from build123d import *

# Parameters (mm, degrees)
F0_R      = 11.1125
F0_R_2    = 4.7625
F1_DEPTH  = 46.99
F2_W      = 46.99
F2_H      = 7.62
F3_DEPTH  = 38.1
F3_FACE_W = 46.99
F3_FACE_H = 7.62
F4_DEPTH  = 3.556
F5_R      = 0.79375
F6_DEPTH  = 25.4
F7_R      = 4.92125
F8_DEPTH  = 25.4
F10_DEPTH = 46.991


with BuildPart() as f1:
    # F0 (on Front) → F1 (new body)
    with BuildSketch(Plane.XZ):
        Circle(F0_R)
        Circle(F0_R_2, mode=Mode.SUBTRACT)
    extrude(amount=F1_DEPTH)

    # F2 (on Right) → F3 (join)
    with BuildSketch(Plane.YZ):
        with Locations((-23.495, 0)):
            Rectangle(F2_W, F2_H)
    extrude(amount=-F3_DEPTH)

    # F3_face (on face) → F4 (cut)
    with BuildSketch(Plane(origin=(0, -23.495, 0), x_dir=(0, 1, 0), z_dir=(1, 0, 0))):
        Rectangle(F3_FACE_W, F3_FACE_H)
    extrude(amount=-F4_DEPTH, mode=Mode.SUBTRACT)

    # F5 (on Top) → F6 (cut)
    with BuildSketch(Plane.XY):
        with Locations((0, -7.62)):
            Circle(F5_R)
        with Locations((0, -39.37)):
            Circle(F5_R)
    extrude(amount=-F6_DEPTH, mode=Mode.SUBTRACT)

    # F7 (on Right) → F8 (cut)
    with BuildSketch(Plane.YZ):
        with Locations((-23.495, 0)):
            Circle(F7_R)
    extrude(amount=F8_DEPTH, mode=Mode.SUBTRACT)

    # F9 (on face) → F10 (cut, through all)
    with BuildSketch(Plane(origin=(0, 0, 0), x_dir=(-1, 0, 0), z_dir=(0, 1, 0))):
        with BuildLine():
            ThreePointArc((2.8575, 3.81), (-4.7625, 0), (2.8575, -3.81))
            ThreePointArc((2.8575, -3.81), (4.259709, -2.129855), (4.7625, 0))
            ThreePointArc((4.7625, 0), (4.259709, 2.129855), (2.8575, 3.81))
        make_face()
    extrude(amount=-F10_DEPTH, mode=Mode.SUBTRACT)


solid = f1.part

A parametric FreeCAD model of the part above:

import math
import FreeCAD as App
import Part
import Sketcher

V = App.Vector
Q = App.Units.Quantity


def add_polygon(sketch, points):
    """Adds a closed chain of lines whose ends are joined by coincident constraints."""
    first, n = sketch.GeometryCount, len(points)
    for a, b in zip(points, points[1:] + points[:1]):
        sketch.addGeometry(Part.LineSegment(App.Vector(*a, 0), App.Vector(*b, 0)), False)
    for i in range(n):
        sketch.addConstraint(Sketcher.Constraint("Coincident", first + i, 2, first + (i + 1) % n, 1))

doc = App.newDocument("Part")
body = doc.addObject("PartDesign::Body", "Body")

# Sketch on XZ plane
sketch1 = body.newObject("Sketcher::SketchObject", "Sketch")
sketch1.AttachmentSupport = (doc.getObject("XZ_Plane"), [""])
sketch1.MapMode = "FlatFace"
sketch1.addGeometry([
    Part.Circle(V(0, 0, 0), V(0, 0, 1), 11.1125),
    Part.Circle(V(0, 0, 0), V(0, 0, 1), 4.7625),
], False)
sketch1.addConstraint([
    Sketcher.Constraint("Coincident", 0, 3, -1, 1),
    Sketcher.Constraint("Coincident", 1, 3, -1, 1),
    Sketcher.Constraint("Diameter", 0, Q("0.875 in")),
    Sketcher.Constraint("Diameter", 1, Q("0.375 in")),
])
pad1 = body.newObject("PartDesign::Pad", "Pad")
pad1.Profile = sketch1
pad1.Length = Q("1.85 in")

# Sketch on YZ plane
sketch2 = body.newObject("Sketcher::SketchObject", "Sketch001")
sketch2.AttachmentSupport = (doc.getObject("YZ_Plane"), [""])
sketch2.MapMode = "FlatFace"
add_polygon(sketch2, [(-46.99, 3.81), (-46.99, -3.81), (0, -3.81), (0, 3.81)])  # lines 0-3
sketch2.addConstraint([
    Sketcher.Constraint("Vertical", 0),
    Sketcher.Constraint("Horizontal", 1),
    Sketcher.Constraint("Vertical", 2),
    Sketcher.Constraint("Horizontal", 3),
    Sketcher.Constraint("Symmetric", 1, 2, 2, 2, -1, 1),
    Sketcher.Constraint("DistanceY", 0, 2, 0, 1, Q("0.3 in")),
    Sketcher.Constraint("DistanceX", 1, 1, 1, 2, Q("1.85 in")),
])
pad2 = body.newObject("PartDesign::Pad", "Pad001")
pad2.Profile = sketch2
pad2.Length = Q("1.5 in")
pad2.Reversed = True

# Sketch on YZ plane
sketch3 = body.newObject("Sketcher::SketchObject", "Sketch002")
sketch3.AttachmentSupport = (doc.getObject("YZ_Plane"), [""])
sketch3.MapMode = "FlatFace"
add_polygon(sketch3, [(-46.99, 3.81), (-46.99, -3.81), (0, -3.81), (0, 3.81)])  # lines 0-3
sketch3.addConstraint([
    Sketcher.Constraint("Vertical", 0),
    Sketcher.Constraint("Horizontal", 1),
    Sketcher.Constraint("Vertical", 2),
    Sketcher.Constraint("Horizontal", 3),
    Sketcher.Constraint("Symmetric", 1, 2, 2, 2, -1, 1),
    Sketcher.Constraint("DistanceY", 0, 2, 0, 1, Q("0.3 in")),
    Sketcher.Constraint("DistanceX", 1, 1, 1, 2, Q("1.85 in")),
])
pocket1 = body.newObject("PartDesign::Pocket", "Pocket")
pocket1.Profile = sketch3
pocket1.Length = Q("0.14 in")

# Sketch on XY plane
sketch4 = body.newObject("Sketcher::SketchObject", "Sketch003")
sketch4.AttachmentSupport = (doc.getObject("XY_Plane"), [""])
sketch4.MapMode = "FlatFace"
sketch4.addGeometry([
    Part.Circle(V(0, -7.62, 0), V(0, 0, 1), 0.79375),
    Part.Circle(V(0, -39.37, 0), V(0, 0, 1), 0.79375),
], False)
sketch4.addConstraint([
    Sketcher.Constraint("Equal", 0, 1),
    Sketcher.Constraint("PointOnObject", 0, 3, -2),
    Sketcher.Constraint("PointOnObject", 1, 3, -2),
    Sketcher.Constraint("Diameter", 0, Q("0.0625 in")),
    Sketcher.Constraint("DistanceY", 0, 3, -1, 1, Q("0.3 in")),
    Sketcher.Constraint("DistanceY", 1, 3, -1, 1, Q("1.55 in")),
])
pocket2 = body.newObject("PartDesign::Pocket", "Pocket001")
pocket2.Profile = sketch4
pocket2.Length = Q("1 in")

# Sketch on YZ plane
sketch5 = body.newObject("Sketcher::SketchObject", "Sketch004")
sketch5.AttachmentSupport = (doc.getObject("YZ_Plane"), [""])
sketch5.MapMode = "FlatFace"
sketch5.addGeometry(Part.Circle(V(-23.495, 0, 0), V(0, 0, 1), 4.92125), False)
sketch5.addConstraint([
    Sketcher.Constraint("PointOnObject", 0, 3, -1),
    Sketcher.Constraint("Diameter", 0, Q("0.3875 in")),
    Sketcher.Constraint("DistanceX", 0, 3, -1, 1, Q("0.925 in")),
])
pocket3 = body.newObject("PartDesign::Pocket", "Pocket002")
pocket3.Profile = sketch5
pocket3.Length = Q("1 in")
pocket3.Reversed = True

# Sketch on XZ plane
sketch6 = body.newObject("Sketcher::SketchObject", "Sketch005")
sketch6.AttachmentSupport = (doc.getObject("XZ_Plane"), [""])
sketch6.MapMode = "FlatFace"
sketch6.addGeometry([
    Part.ArcOfCircle(Part.Circle(V(0, 0, 0), V(0, 0, 1), 4.7625), math.radians(-126.869898), math.radians(126.869898)),
    Part.ArcOfCircle(Part.Circle(V(0.000003, 0.000001, 0), V(0, 0, 1), 4.762503), math.radians(-179.999983), math.radians(-126.869915)),
    Part.ArcOfCircle(Part.Circle(V(0.000003, -0.000001, 0), V(0, 0, 1), 4.762503), math.radians(126.869915), math.radians(179.999983)),
], False)
sketch6.addConstraint([
    Sketcher.Constraint("Tangent", 0, 1, 1, 2),
    Sketcher.Constraint("Tangent", 1, 1, 2, 2),
    Sketcher.Constraint("Tangent", 2, 1, 0, 2),
    Sketcher.Constraint("Coincident", 0, 3, -1, 1),
    Sketcher.Constraint("PointOnObject", 1, 1, -1),
    Sketcher.Constraint("Vertical", 0, 1, 2, 1),
    Sketcher.Constraint("Radius", 0, Q("0.1875 in")),
    Sketcher.Constraint("DistanceY", 0, 1, 2, 1, Q("0.3 in")),
])
pocket4 = body.newObject("PartDesign::Pocket", "Pocket003")
pocket4.Profile = sketch6
pocket4.Type = "ThroughAll"
pocket4.Reversed = True

doc.recompute()
